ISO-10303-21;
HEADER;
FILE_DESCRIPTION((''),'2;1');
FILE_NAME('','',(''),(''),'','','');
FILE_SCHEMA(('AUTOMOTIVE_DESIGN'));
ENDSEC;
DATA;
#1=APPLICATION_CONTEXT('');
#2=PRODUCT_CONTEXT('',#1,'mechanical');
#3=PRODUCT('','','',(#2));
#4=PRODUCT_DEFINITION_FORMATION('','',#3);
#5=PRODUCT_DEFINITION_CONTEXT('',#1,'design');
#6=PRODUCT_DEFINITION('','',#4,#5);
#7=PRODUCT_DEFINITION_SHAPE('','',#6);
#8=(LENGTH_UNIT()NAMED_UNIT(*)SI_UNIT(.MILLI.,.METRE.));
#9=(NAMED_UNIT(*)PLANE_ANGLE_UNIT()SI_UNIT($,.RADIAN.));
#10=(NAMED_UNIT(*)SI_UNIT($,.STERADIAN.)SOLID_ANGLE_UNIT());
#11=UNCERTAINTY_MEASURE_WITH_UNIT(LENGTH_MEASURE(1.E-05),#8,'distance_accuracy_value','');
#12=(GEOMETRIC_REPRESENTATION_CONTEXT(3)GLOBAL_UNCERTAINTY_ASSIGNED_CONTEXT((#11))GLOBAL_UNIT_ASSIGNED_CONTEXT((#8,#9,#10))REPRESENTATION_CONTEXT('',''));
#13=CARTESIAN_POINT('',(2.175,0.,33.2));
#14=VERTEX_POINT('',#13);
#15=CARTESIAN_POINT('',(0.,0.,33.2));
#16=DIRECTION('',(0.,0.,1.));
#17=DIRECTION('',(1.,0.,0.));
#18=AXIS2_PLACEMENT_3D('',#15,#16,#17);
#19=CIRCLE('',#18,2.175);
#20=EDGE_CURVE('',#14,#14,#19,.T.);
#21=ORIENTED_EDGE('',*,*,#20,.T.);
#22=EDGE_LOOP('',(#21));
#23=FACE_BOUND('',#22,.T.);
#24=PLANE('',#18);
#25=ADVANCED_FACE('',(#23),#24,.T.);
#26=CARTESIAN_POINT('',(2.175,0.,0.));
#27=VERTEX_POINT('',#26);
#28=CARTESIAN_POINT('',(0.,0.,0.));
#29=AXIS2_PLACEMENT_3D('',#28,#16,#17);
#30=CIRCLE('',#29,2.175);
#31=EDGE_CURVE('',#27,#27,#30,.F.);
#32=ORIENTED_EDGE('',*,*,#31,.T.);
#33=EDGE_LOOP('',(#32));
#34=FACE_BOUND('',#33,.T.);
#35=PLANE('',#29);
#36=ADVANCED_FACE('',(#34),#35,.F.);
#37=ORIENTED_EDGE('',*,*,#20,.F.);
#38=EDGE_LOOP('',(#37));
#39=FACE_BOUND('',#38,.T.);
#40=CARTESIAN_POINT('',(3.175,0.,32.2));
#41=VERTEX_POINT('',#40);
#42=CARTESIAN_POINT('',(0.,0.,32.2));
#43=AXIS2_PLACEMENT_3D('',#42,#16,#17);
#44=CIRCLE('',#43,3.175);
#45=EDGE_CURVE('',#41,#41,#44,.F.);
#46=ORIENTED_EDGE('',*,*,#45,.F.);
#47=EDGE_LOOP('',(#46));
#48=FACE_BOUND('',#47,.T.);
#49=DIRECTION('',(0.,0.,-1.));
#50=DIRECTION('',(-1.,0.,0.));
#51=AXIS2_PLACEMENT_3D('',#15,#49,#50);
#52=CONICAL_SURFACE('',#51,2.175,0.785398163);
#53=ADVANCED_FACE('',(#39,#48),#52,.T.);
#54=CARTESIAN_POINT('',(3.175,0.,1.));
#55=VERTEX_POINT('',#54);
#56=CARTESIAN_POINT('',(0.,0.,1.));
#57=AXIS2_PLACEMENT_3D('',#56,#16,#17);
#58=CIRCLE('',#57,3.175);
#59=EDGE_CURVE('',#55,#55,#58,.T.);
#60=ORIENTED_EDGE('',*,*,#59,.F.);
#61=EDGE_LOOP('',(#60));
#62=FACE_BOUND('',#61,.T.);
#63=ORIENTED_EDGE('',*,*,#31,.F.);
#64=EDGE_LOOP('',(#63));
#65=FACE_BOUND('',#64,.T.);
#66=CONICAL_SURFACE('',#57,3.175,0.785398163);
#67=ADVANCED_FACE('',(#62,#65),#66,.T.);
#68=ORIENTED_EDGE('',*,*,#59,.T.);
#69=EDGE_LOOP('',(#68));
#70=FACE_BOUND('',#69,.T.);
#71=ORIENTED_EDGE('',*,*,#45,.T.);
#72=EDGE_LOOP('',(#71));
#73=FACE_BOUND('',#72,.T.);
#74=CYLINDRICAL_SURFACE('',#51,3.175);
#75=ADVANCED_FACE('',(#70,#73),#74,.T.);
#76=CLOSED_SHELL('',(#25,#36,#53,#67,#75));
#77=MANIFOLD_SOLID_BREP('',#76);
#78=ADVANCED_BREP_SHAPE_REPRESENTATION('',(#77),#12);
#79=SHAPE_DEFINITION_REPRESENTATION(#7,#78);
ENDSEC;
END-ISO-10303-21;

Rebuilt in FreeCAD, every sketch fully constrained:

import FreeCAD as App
import Part
import Sketcher


def edges_at(feature, points):
    """Names of the edges that pass closest to the given points."""
    edges = feature.Shape.Edges
    near = lambda p: min(range(len(edges)), key=lambda i: edges[i].distToShape(Part.Vertex(*p))[0])
    return sorted({f"Edge{near(p) + 1}" for p in points})

doc = App.newDocument("Part")
body = doc.addObject("PartDesign::Body", "Body")

# Sketch on XY plane
sketch1 = body.newObject("Sketcher::SketchObject", "Sketch")
sketch1.AttachmentSupport = (doc.getObject("XY_Plane"), [""])
sketch1.MapMode = "FlatFace"
sketch1.addGeometry(Part.Circle(App.Vector(0, 0, 0), App.Vector(0, 0, 1), 3.175), False)
sketch1.addConstraint(Sketcher.Constraint("Coincident", 0, 3, -1, 1))
sketch1.addConstraint(Sketcher.Constraint("Diameter", 0, 6.35))
pad1 = body.newObject("PartDesign::Pad", "Pad")
pad1.Profile = sketch1
pad1.Length = 33.2
doc.recompute()

chamfer = body.newObject("PartDesign::Chamfer", "Chamfer")
chamfer.Base = (pad1, edges_at(pad1, [(-3.175, 0, 0), (-3.175, 0, 33.2)]))
chamfer.Size = 1

doc.recompute()
